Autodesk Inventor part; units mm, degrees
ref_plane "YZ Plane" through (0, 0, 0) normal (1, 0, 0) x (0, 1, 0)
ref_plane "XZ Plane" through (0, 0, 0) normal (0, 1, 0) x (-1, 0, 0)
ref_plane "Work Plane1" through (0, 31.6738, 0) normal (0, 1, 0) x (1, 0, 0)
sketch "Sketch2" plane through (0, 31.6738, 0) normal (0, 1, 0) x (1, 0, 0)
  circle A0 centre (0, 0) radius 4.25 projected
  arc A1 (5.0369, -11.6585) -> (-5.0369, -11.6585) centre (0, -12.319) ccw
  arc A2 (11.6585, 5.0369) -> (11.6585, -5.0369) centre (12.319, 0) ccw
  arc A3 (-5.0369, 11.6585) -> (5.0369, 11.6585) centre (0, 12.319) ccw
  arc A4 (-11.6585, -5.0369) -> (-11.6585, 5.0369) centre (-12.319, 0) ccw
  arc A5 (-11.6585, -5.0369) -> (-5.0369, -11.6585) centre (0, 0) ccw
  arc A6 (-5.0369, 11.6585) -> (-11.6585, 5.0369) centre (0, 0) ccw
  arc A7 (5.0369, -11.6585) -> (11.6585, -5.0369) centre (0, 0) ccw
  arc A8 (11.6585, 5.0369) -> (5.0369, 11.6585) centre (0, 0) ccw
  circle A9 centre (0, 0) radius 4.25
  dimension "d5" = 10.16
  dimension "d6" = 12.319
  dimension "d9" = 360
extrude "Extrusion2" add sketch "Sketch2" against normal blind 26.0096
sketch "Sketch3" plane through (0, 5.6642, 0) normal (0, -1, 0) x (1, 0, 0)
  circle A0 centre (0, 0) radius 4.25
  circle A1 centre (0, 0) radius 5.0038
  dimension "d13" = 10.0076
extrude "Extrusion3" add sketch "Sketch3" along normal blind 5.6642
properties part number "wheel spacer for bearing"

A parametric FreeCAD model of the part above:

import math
import FreeCAD as App
import Part
import Sketcher
from FreeCAD import Vector
Q = App.Units.Quantity

doc = App.newDocument("Part")
body = doc.addObject("PartDesign::Body", "Body")

# Sketch on XZ plane
sketch1 = body.newObject("Sketcher::SketchObject", "Sketch")
sketch1.AttachmentSupport = (doc.getObject("XZ_Plane"), [""])
sketch1.MapMode = "FlatFace"
sketch1.AttachmentOffset = App.Placement(Vector(0, 0, -1.247 * 25.4), App.Rotation())
sketch1.addGeometry(Part.ArcOfCircle(Part.Circle(Vector(0, 12.3, 0), Vector(0, 0, 1), 5.1), math.radians(-173), math.radians(-7)), False)
sketch1.addGeometry(Part.ArcOfCircle(Part.Circle(Vector(0, 0, 0), Vector(0, 0, 1), 12.7), math.radians(23), math.radians(67)), False)
sketch1.addGeometry(Part.ArcOfCircle(Part.Circle(Vector(12.3, 0, 0), Vector(0, 0, 1), 5.1), math.radians(97), math.radians(263)), False)
sketch1.addGeometry(Part.ArcOfCircle(Part.Circle(Vector(0, 0, 0), Vector(0, 0, 1), 12.7), math.radians(-67), math.radians(-23)), False)
sketch1.addGeometry(Part.ArcOfCircle(Part.Circle(Vector(0, -12.3, 0), Vector(0, 0, 1), 5.1), math.radians(7), math.radians(173)), False)
sketch1.addGeometry(Part.ArcOfCircle(Part.Circle(Vector(0, 0, 0), Vector(0, 0, 1), 12.7), math.radians(-157), math.radians(-113)), False)
sketch1.addGeometry(Part.ArcOfCircle(Part.Circle(Vector(-12.3, 0, 0), Vector(0, 0, 1), 5.1), math.radians(-83), math.radians(83)), False)
sketch1.addGeometry(Part.ArcOfCircle(Part.Circle(Vector(0, 0, 0), Vector(0, 0, 1), 12.7), math.radians(113), math.radians(157)), False)
sketch1.addGeometry(Part.Circle(Vector(0, 0, 0), Vector(0, 0, 1), 4.2), False)
sketch1.addConstraint(Sketcher.Constraint("Coincident", 0, 2, 1, 2))
sketch1.addConstraint(Sketcher.Constraint("Coincident", 1, 1, 2, 1))
sketch1.addConstraint(Sketcher.Constraint("Coincident", 2, 2, 3, 2))
sketch1.addConstraint(Sketcher.Constraint("Coincident", 3, 1, 4, 1))
sketch1.addConstraint(Sketcher.Constraint("Coincident", 4, 2, 5, 2))
sketch1.addConstraint(Sketcher.Constraint("Coincident", 5, 1, 6, 1))
sketch1.addConstraint(Sketcher.Constraint("Coincident", 6, 2, 7, 2))
sketch1.addConstraint(Sketcher.Constraint("Coincident", 7, 1, 0, 1))
sketch1.addConstraint(Sketcher.Constraint("Coincident", 1, 3, -1, 1))
sketch1.addConstraint(Sketcher.Constraint("Coincident", 3, 3, -1, 1))
sketch1.addConstraint(Sketcher.Constraint("Coincident", 5, 3, -1, 1))
sketch1.addConstraint(Sketcher.Constraint("Coincident", 7, 3, -1, 1))
sketch1.addConstraint(Sketcher.Constraint("Coincident", 8, 3, -1, 1))
sketch1.addConstraint(Sketcher.Constraint("Equal", 0, 2))
sketch1.addConstraint(Sketcher.Constraint("Equal", 1, 3))
sketch1.addConstraint(Sketcher.Constraint("Equal", 2, 4))
sketch1.addConstraint(Sketcher.Constraint("Equal", 3, 5))
sketch1.addConstraint(Sketcher.Constraint("Equal", 4, 6))
sketch1.addConstraint(Sketcher.Constraint("Equal", 5, 7))
sketch1.addConstraint(Sketcher.Constraint("Symmetric", 0, 3, 4, 3, -1, 1))
sketch1.addConstraint(Sketcher.Constraint("Symmetric", 2, 3, 6, 3, -1, 1))
sketch1.addConstraint(Sketcher.Constraint("PointOnObject", 0, 3, -2))
sketch1.addConstraint(Sketcher.Constraint("PointOnObject", 2, 3, -1))
sketch1.addConstraint(Sketcher.Constraint("Radius", 0, Q("0.2 in")))
sketch1.addConstraint(Sketcher.Constraint("Radius", 1, Q("0.5 in")))
sketch1.addConstraint(Sketcher.Constraint("DistanceY", -1, 1, 0, 3, Q("0.485 in")))
sketch1.addConstraint(Sketcher.Constraint("DistanceX", -1, 1, 2, 3, Q("0.485 in")))
sketch1.addConstraint(Sketcher.Constraint("Diameter", 8, 8.5))
pad1 = body.newObject("PartDesign::Pad", "Pad")
pad1.Profile = sketch1
pad1.Length = Q("1.024 in")

# Sketch on XZ plane
sketch2 = body.newObject("Sketcher::SketchObject", "Sketch001")
sketch2.AttachmentSupport = (doc.getObject("XZ_Plane"), [""])
sketch2.MapMode = "FlatFace"
sketch2.AttachmentOffset = App.Placement(Vector(0, 0, -0.223 * 25.4), App.Rotation())
sketch2.addGeometry(Part.Circle(Vector(0, 0, 0), Vector(0, 0, 1), 5), False)
sketch2.addGeometry(Part.Circle(Vector(0, 0, 0), Vector(0, 0, 1), 4.2), False)
sketch2.addConstraint(Sketcher.Constraint("Coincident", 0, 3, -1, 1))
sketch2.addConstraint(Sketcher.Constraint("Coincident", 1, 3, -1, 1))
sketch2.addConstraint(Sketcher.Constraint("Diameter", 0, Q("0.394 in")))
sketch2.addConstraint(Sketcher.Constraint("Diameter", 1, 8.5))
pad2 = body.newObject("PartDesign::Pad", "Pad001")
pad2.Profile = sketch2
pad2.Length = Q("0.223 in")

doc.recompute()
